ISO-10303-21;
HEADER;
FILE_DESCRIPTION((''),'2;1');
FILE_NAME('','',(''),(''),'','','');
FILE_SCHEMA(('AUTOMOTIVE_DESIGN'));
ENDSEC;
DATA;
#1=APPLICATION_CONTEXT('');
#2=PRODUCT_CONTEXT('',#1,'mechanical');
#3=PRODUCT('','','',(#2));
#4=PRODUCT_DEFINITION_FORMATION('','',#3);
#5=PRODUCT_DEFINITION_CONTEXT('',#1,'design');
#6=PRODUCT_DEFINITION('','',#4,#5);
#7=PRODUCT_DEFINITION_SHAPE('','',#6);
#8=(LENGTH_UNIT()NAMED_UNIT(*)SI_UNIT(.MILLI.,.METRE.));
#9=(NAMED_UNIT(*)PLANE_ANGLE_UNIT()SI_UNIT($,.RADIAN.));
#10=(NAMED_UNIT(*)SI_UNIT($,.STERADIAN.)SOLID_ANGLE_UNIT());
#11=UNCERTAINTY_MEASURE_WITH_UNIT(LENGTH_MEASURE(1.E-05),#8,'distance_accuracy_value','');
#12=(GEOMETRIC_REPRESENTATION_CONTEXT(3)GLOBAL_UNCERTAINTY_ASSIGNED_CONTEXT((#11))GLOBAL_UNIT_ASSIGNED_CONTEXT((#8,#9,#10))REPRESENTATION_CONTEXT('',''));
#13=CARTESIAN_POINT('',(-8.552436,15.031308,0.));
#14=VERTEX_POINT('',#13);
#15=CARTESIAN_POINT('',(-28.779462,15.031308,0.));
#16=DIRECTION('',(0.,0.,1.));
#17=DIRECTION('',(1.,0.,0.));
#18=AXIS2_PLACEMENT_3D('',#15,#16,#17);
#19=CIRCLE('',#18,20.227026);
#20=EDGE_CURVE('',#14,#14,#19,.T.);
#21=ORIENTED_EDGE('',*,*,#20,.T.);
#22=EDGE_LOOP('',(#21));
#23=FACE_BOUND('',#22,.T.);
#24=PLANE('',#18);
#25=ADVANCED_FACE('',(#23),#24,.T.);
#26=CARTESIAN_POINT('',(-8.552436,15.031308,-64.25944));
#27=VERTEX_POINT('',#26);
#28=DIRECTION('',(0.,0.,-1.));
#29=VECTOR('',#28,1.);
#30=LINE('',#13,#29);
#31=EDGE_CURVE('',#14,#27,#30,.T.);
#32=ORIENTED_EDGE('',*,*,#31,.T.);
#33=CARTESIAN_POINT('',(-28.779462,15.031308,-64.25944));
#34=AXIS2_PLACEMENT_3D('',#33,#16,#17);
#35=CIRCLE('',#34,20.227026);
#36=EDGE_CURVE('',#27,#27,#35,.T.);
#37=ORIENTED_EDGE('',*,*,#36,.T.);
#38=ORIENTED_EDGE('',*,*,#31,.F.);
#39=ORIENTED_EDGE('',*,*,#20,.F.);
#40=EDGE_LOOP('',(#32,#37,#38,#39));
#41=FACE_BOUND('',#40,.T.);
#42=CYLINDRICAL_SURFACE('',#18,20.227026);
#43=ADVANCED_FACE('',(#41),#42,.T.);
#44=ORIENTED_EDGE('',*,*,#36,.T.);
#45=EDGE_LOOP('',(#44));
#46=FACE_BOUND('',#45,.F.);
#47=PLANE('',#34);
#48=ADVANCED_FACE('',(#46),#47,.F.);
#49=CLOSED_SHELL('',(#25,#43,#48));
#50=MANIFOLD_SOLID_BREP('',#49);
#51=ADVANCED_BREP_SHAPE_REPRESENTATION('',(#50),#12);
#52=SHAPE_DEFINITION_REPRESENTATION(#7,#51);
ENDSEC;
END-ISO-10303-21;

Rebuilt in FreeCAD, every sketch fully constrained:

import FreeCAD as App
import Part
import Sketcher
from FreeCAD import Vector

doc = App.newDocument("Part")
body = doc.addObject("PartDesign::Body", "Body")

# Sketch on XY plane
sketch1 = doc.addObject("Sketcher::SketchObject", "Sketch")
body.addObject(sketch1)
sketch1.AttachmentSupport = (doc.XY_Plane, [""])
sketch1.MapMode = "FlatFace"
sketch1.addGeometry(Part.Circle(Vector(-29, 15, 0), Vector(0, 0, 1), 20), False)
sketch1.addConstraint(Sketcher.Constraint("Diameter", 0, 40.454052))
sketch1.addConstraint(Sketcher.Constraint("DistanceX", 0, 3, -1, 1, 28.779462))
sketch1.addConstraint(Sketcher.Constraint("DistanceY", -1, 1, 0, 3, 15.031308))
pad1 = doc.addObject("PartDesign::Pad", "Pad")
body.addObject(pad1)
pad1.Profile = sketch1
pad1.Length = 64.25944
pad1.Reversed = True

doc.recompute()
